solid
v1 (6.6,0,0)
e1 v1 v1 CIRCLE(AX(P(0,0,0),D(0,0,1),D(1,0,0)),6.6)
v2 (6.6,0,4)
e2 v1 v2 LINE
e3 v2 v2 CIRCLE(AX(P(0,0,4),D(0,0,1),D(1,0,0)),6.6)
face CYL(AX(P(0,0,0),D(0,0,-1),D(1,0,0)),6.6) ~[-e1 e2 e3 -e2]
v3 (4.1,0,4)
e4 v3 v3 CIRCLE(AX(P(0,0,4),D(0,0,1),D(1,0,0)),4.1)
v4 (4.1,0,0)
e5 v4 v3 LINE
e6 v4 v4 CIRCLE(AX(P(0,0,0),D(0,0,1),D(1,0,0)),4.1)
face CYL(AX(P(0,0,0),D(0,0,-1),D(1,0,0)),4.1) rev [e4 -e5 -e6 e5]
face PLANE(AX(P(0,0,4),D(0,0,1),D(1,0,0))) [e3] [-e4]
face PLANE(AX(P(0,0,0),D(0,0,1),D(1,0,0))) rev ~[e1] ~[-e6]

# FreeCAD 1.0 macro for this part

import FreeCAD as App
import Part
import Sketcher
Q = App.Units.Quantity

doc = App.newDocument("Part")
body = doc.addObject("PartDesign::Body", "Body")

sketch1 = body.newObject("Sketcher::SketchObject", "Sketch")
sketch1.AttachmentSupport = (doc.getObject("XY_Plane"), [""])
sketch1.MapMode = "FlatFace"
sketch1.addGeometry([
    Part.Circle(App.Vector(0, 0, 0), App.Vector(0, 0, 1), 6.6),
    Part.Circle(App.Vector(0, 0, 0), App.Vector(0, 0, 1), 4.1),
], False)
sketch1.addConstraint([
    Sketcher.Constraint("Coincident", 0, 3, -1, 1),
    Sketcher.Constraint("Coincident", 1, 3, -1, 1),
    Sketcher.Constraint("Diameter", 1, Q("8.2 mm")),
    Sketcher.Constraint("Diameter", 0, Q("13.2 mm")),
])
pad1 = body.newObject("PartDesign::Pad", "Pad")
pad1.Profile = sketch1
pad1.Length = 4

doc.recompute()
